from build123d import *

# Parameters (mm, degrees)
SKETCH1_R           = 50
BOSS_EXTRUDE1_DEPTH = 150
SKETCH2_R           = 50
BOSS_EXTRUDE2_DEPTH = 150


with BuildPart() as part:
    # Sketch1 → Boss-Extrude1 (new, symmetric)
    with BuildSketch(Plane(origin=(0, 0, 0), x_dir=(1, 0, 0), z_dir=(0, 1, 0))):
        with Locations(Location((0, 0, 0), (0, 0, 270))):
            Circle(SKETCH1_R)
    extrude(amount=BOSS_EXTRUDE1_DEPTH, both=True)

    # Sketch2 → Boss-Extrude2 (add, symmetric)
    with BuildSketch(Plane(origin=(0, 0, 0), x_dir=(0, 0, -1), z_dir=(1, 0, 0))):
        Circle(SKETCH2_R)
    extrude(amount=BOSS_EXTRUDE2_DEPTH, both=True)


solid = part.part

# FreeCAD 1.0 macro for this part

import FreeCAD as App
import Part
import Sketcher
from FreeCAD import Vector
Q = App.Units.Quantity

doc = App.newDocument("Part")
body = doc.addObject("PartDesign::Body", "Body")

# Sketch on XZ plane
sketch1 = body.newObject("Sketcher::SketchObject", "Sketch")
sketch1.AttachmentSupport = (doc.getObject("XZ_Plane"), [""])
sketch1.MapMode = "FlatFace"
sketch1.addGeometry(Part.Circle(Vector(0, 0, 0), Vector(0, 0, 1), 50), False)
sketch1.addConstraint([
    Sketcher.Constraint("Coincident", 0, 3, -1, 1),
    Sketcher.Constraint("Diameter", 0, Q("100 mm")),
])
pad1 = body.newObject("PartDesign::Pad", "Pad")
pad1.Profile = sketch1
pad1.Length = 300
pad1.Midplane = True

# Sketch on YZ plane
sketch2 = body.newObject("Sketcher::SketchObject", "Sketch001")
sketch2.AttachmentSupport = (doc.getObject("YZ_Plane"), [""])
sketch2.MapMode = "FlatFace"
sketch2.addGeometry(Part.Circle(Vector(0, 0, 0), Vector(0, 0, 1), 50), False)
sketch2.addConstraint([
    Sketcher.Constraint("Coincident", 0, 3, -1, 1),
    Sketcher.Constraint("Diameter", 0, Q("100 mm")),
])
pad2 = body.newObject("PartDesign::Pad", "Pad001")
pad2.Profile = sketch2
pad2.Length = 300
pad2.Midplane = True

doc.recompute()
